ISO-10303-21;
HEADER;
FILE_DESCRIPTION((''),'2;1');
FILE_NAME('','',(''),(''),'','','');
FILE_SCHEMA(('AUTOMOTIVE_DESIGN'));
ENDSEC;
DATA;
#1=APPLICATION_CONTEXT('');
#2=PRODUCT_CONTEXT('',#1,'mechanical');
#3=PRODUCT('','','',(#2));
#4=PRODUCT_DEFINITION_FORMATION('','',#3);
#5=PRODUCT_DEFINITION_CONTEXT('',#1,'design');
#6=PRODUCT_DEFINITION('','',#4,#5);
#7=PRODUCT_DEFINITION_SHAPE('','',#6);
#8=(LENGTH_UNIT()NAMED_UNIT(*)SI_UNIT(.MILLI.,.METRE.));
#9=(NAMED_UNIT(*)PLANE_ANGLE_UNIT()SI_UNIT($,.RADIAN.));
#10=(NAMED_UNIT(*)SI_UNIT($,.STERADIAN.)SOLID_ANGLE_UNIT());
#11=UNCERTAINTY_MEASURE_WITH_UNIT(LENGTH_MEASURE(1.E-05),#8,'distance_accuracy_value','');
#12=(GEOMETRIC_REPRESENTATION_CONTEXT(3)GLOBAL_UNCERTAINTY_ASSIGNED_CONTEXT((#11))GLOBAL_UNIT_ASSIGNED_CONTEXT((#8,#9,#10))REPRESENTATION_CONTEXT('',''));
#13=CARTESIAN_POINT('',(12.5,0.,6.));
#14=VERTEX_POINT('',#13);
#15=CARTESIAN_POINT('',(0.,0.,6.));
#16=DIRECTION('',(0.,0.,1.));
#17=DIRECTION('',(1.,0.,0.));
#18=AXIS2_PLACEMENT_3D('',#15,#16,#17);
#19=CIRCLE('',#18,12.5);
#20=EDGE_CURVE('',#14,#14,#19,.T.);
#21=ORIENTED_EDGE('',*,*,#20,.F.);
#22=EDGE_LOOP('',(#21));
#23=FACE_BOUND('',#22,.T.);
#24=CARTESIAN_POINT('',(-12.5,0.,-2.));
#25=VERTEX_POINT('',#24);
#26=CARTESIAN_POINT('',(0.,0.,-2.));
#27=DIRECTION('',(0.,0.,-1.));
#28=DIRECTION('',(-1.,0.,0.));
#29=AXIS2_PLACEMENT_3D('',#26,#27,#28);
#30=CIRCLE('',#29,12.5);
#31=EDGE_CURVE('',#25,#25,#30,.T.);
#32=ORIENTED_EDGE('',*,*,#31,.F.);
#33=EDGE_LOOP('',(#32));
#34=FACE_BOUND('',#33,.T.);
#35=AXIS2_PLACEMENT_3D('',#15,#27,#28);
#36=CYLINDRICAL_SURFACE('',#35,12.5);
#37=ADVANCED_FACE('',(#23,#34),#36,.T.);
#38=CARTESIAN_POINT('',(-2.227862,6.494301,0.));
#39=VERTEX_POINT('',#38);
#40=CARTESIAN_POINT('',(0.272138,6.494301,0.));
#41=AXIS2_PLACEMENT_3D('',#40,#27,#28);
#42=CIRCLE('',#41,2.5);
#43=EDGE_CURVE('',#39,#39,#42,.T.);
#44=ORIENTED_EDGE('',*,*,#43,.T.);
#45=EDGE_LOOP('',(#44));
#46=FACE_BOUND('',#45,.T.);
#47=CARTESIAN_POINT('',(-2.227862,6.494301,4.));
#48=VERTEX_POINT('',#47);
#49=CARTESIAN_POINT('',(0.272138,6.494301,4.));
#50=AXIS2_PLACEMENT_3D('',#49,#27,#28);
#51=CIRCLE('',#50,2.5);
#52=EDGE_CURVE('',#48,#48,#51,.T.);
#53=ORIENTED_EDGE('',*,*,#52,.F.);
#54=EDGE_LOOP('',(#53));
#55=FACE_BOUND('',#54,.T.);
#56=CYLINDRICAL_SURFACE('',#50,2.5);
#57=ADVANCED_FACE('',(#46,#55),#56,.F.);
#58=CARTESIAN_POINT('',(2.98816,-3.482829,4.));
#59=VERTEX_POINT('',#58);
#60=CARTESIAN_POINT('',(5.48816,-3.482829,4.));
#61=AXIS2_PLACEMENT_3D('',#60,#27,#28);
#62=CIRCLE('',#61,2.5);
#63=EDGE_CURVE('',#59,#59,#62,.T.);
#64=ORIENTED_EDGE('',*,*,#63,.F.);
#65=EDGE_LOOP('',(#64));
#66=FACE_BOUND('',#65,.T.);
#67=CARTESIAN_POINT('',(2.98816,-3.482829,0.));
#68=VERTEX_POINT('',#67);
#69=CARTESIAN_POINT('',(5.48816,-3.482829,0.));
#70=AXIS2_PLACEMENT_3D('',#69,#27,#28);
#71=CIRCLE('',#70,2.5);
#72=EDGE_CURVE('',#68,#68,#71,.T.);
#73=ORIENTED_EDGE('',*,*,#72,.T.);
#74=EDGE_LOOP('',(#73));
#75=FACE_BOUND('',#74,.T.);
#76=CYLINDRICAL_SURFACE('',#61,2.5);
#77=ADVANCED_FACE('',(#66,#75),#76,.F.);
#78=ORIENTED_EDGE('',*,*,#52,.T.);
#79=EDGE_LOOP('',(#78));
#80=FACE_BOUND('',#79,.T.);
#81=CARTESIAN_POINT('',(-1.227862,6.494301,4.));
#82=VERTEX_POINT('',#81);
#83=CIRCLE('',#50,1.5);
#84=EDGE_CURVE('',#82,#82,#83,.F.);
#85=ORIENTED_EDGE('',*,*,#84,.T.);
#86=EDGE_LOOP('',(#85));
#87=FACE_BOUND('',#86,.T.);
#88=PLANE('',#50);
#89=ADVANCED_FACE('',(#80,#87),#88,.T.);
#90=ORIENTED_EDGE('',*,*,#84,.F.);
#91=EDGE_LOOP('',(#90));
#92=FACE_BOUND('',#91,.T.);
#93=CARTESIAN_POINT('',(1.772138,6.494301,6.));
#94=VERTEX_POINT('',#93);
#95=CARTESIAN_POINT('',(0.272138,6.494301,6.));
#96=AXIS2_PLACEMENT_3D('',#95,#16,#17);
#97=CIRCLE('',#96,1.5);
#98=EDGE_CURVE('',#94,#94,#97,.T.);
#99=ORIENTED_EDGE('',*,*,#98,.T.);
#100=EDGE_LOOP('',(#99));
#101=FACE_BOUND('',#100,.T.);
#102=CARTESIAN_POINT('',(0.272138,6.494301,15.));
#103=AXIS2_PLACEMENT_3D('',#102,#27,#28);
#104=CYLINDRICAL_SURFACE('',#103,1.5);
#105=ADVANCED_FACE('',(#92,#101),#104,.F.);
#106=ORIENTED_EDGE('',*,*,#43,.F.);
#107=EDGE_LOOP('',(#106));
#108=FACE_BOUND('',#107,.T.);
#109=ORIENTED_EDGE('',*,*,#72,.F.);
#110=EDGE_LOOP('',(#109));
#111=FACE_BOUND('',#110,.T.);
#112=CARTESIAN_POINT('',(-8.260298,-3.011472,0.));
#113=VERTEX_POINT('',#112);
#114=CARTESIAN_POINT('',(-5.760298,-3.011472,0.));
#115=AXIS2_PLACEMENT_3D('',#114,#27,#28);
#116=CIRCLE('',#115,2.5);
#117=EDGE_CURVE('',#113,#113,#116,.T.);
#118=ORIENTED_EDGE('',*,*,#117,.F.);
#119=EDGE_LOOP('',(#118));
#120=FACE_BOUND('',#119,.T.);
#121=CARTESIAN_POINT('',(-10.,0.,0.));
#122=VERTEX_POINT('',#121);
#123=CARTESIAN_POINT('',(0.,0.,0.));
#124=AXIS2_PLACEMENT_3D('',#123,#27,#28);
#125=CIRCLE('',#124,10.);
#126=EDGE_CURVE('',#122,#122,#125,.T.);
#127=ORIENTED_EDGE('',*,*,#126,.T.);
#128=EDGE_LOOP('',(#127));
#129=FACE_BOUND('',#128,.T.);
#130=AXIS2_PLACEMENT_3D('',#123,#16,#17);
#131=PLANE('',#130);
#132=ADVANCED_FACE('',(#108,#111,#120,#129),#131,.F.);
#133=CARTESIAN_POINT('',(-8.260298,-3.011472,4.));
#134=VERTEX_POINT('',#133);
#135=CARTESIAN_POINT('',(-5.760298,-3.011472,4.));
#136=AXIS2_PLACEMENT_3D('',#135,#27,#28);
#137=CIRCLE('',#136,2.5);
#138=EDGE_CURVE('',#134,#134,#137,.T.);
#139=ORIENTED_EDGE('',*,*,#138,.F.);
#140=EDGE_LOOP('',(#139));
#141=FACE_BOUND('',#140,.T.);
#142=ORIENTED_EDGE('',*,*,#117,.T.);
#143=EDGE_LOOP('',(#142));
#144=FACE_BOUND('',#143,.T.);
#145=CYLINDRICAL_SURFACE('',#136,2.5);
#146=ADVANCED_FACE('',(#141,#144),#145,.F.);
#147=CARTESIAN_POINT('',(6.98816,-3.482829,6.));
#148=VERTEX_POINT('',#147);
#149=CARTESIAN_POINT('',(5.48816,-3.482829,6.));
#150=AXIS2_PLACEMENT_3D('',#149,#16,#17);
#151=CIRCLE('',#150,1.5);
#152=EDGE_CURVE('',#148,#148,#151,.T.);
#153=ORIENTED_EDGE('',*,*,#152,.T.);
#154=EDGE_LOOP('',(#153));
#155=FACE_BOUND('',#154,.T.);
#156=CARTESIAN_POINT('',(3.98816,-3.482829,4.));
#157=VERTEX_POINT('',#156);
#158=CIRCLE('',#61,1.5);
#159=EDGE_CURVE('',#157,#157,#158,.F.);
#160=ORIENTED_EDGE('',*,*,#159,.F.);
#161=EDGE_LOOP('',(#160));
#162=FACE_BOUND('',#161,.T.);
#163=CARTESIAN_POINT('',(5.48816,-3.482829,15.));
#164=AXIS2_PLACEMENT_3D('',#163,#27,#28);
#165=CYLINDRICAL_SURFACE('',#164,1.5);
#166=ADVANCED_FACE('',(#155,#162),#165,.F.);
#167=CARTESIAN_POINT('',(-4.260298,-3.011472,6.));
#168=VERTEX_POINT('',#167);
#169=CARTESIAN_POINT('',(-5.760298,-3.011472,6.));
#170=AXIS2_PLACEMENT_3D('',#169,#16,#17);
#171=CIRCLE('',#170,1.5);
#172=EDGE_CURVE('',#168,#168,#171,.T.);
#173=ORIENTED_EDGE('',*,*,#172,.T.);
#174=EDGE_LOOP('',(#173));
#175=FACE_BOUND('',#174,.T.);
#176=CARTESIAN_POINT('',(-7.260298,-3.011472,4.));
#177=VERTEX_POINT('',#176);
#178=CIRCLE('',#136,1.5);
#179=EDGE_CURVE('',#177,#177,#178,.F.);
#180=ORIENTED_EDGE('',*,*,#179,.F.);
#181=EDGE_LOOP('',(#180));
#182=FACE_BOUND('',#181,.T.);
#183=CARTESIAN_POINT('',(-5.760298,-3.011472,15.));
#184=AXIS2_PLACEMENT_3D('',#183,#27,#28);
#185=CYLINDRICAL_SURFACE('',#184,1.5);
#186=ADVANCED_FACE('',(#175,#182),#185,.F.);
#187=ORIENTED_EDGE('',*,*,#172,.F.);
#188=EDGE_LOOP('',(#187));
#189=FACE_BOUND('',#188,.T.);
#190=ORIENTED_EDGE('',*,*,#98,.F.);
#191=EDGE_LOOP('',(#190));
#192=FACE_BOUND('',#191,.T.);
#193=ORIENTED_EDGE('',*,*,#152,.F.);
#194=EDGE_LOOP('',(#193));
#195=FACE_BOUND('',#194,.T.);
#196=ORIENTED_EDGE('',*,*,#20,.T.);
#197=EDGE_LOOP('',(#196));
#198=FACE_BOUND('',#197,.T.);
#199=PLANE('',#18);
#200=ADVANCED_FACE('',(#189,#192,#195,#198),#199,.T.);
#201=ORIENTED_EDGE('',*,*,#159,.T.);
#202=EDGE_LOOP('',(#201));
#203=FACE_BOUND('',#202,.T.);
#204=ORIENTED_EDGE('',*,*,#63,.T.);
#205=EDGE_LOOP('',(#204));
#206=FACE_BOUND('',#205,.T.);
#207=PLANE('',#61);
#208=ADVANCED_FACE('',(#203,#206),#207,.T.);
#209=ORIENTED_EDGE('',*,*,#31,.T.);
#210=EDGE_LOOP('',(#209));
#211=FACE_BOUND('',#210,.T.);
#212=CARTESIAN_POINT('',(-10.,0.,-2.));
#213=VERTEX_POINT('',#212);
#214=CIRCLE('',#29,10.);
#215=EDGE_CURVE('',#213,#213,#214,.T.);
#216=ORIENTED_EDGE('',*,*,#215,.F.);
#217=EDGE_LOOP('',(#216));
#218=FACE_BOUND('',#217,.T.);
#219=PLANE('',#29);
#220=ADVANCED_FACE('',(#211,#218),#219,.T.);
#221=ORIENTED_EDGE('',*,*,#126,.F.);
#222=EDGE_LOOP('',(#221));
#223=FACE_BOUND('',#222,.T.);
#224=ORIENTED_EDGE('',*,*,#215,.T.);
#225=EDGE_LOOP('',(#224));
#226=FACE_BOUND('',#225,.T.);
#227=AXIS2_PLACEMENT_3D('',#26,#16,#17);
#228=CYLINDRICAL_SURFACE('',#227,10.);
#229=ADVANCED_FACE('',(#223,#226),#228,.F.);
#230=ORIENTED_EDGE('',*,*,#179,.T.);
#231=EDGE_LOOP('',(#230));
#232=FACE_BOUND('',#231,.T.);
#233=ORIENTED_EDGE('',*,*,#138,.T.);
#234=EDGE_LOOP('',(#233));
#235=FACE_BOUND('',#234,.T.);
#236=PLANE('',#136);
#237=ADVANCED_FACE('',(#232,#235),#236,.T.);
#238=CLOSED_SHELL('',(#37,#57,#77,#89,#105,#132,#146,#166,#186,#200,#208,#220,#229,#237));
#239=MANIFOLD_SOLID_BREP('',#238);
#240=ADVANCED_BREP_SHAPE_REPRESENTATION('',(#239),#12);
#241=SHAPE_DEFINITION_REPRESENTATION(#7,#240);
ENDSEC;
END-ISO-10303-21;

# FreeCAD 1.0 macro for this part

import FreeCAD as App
import Part
import Sketcher
from FreeCAD import Vector

doc = App.newDocument("Part")
body = doc.addObject("PartDesign::Body", "Body")

sketch1 = body.newObject("Sketcher::SketchObject", "Sketch")
sketch1.AttachmentSupport = (doc.getObject("XY_Plane"), [""])
sketch1.MapMode = "FlatFace"
sketch1.addGeometry(Part.Circle(Vector(0, 0, 0), Vector(0, 0, 1), 12), False)
sketch1.addConstraint([
    Sketcher.Constraint("Coincident", 0, 3, -1, 1),
    Sketcher.Constraint("Diameter", 0, 25.0),
])
pad1 = body.newObject("PartDesign::Pad", "Pad")
pad1.Profile = sketch1
pad1.Length = 6

sketch2 = body.newObject("Sketcher::SketchObject", "Sketch001")
sketch2.AttachmentSupport = (doc.getObject("XY_Plane"), [""])
sketch2.MapMode = "FlatFace"
sketch2.addGeometry([
    Part.Circle(Vector(5.5, -3.5, 0), Vector(0, 0, 1), 1.5),
    Part.Circle(Vector(0.3, 6.5, 0), Vector(0, 0, 1), 1.5),
    Part.Circle(Vector(-5.8, -3, 0), Vector(0, 0, 1), 1.5),
], False)
sketch2.addConstraint([
    Sketcher.Constraint("Equal", 0, 1),
    Sketcher.Constraint("Equal", 1, 2),
    Sketcher.Constraint("Diameter", 0, 3.0),
    Sketcher.Constraint("DistanceY", -1, 1, 1, 3, 6.494301),
    Sketcher.Constraint("DistanceX", 2, 3, -1, 1, 5.760298),
    Sketcher.Constraint("DistanceX", -1, 1, 0, 3, 5.48816),
    Sketcher.Constraint("DistanceY", 0, 3, -1, 1, 3.482829),
    Sketcher.Constraint("DistanceX", -1, 1, 1, 3, 0.272138),
    Sketcher.Constraint("DistanceY", 2, 3, -1, 1, 3.011472),
])
pocket1 = body.newObject("PartDesign::Pocket", "Pocket")
pocket1.Profile = sketch2
pocket1.Length = 15
pocket1.Reversed = True

sketch3 = body.newObject("Sketcher::SketchObject", "Sketch002")
sketch3.AttachmentSupport = (doc.getObject("XY_Plane"), [""])
sketch3.MapMode = "FlatFace"
sketch3.addGeometry([
    Part.Circle(Vector(0, 0, 0), Vector(0, 0, 1), 12),
    Part.Circle(Vector(0, 0, 0), Vector(0, 0, 1), 10),
], False)
sketch3.addConstraint([
    Sketcher.Constraint("Coincident", 0, 3, -1, 1),
    Sketcher.Constraint("Coincident", 1, 3, -1, 1),
    Sketcher.Constraint("Diameter", 0, 25.0),
    Sketcher.Constraint("Diameter", 1, 20.0),
])
pad2 = body.newObject("PartDesign::Pad", "Pad001")
pad2.Profile = sketch3
pad2.Length = 2
pad2.Reversed = True

sketch4 = body.newObject("Sketcher::SketchObject", "Sketch003")
sketch4.AttachmentSupport = (doc.getObject("XY_Plane"), [""])
sketch4.MapMode = "FlatFace"
sketch4.addGeometry([
    Part.Circle(Vector(0.3, 6.5, 0), Vector(0, 0, 1), 2.5),
    Part.Circle(Vector(-5.8, -3, 0), Vector(0, 0, 1), 2.5),
    Part.Circle(Vector(5.5, -3.5, 0), Vector(0, 0, 1), 2.5),
], False)
sketch4.addConstraint([
    Sketcher.Constraint("Equal", 0, 1),
    Sketcher.Constraint("Equal", 1, 2),
    Sketcher.Constraint("Diameter", 0, 5.0),
    Sketcher.Constraint("DistanceY", -1, 1, 0, 3, 6.494301),
    Sketcher.Constraint("DistanceX", 1, 3, -1, 1, 5.760298),
    Sketcher.Constraint("DistanceX", -1, 1, 2, 3, 5.48816),
    Sketcher.Constraint("DistanceY", 2, 3, -1, 1, 3.482829),
    Sketcher.Constraint("DistanceX", -1, 1, 0, 3, 0.272138),
    Sketcher.Constraint("DistanceY", 1, 3, -1, 1, 3.011472),
])
pocket2 = body.newObject("PartDesign::Pocket", "Pocket001")
pocket2.Profile = sketch4
pocket2.Length = 4
pocket2.Reversed = True

doc.recompute()
